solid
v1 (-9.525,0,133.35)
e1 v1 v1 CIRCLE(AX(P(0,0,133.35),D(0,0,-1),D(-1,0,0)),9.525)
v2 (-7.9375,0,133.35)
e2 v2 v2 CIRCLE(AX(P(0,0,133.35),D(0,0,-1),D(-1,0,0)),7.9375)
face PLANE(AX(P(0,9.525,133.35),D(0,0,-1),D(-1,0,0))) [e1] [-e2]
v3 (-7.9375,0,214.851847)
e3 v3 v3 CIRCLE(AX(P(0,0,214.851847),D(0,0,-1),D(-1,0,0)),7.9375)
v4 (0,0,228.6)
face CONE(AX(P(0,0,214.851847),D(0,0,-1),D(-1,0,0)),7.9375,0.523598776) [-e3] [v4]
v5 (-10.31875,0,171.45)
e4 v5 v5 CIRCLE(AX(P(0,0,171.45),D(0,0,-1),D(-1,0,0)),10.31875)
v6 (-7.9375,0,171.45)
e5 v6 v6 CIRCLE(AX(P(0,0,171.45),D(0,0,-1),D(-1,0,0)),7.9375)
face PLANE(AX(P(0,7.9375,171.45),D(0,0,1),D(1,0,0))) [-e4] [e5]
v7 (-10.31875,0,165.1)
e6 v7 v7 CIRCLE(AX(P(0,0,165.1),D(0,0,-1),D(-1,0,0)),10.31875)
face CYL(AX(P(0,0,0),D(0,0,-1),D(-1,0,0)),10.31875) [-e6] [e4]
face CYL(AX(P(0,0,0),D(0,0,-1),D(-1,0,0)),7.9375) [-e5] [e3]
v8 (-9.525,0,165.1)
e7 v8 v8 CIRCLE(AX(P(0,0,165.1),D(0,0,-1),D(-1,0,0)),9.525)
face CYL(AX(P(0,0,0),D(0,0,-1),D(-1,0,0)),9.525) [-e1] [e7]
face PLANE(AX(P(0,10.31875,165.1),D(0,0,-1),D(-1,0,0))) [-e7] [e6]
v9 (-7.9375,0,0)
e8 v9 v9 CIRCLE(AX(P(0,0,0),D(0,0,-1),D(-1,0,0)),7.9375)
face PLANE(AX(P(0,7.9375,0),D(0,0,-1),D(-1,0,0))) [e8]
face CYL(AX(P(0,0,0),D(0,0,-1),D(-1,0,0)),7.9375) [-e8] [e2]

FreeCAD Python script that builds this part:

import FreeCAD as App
import Part
import Sketcher
from FreeCAD import Vector
Q = App.Units.Quantity


def add_polygon(sketch, points):
    """Adds a closed chain of lines whose ends are joined by coincident constraints."""
    first, n = sketch.GeometryCount, len(points)
    for a, b in zip(points, points[1:] + points[:1]):
        sketch.addGeometry(Part.LineSegment(App.Vector(*a, 0), App.Vector(*b, 0)), False)
    for i in range(n):
        sketch.addConstraint(Sketcher.Constraint("Coincident", first + i, 2, first + (i + 1) % n, 1))

doc = App.newDocument("Part")
body = doc.addObject("PartDesign::Body", "Body")

# Sketch on YZ plane
sketch1 = doc.addObject("Sketcher::SketchObject", "Sketch")
body.addObject(sketch1)
sketch1.AttachmentSupport = (doc.YZ_Plane, [""])
sketch1.MapMode = "FlatFace"
add_polygon(sketch1, [(7.9, 214.9), (0, 228.6), (0, 0), (7.9, 0), (7.9, 133.3), (9.5, 133.3), (9.5, 165.1), (10.3, 165.1), (10.3, 171.4), (7.9, 171.4)])  # lines 0-9
sketch1.addConstraint(Sketcher.Constraint("Vertical", 1))
sketch1.addConstraint(Sketcher.Constraint("Horizontal", 2))
sketch1.addConstraint(Sketcher.Constraint("Vertical", 3))
sketch1.addConstraint(Sketcher.Constraint("Horizontal", 4))
sketch1.addConstraint(Sketcher.Constraint("Vertical", 5))
sketch1.addConstraint(Sketcher.Constraint("Horizontal", 6))
sketch1.addConstraint(Sketcher.Constraint("Vertical", 7))
sketch1.addConstraint(Sketcher.Constraint("Horizontal", 8))
sketch1.addConstraint(Sketcher.Constraint("Vertical", 9))
sketch1.addConstraint(Sketcher.Constraint("Coincident", 1, 2, -1, 1))
sketch1.addConstraint(Sketcher.Constraint("Vertical", 3, 2, 8, 2))
sketch1.addConstraint(Sketcher.Constraint("DistanceY", 1, 2, 1, 1, Q("9 in")))
sketch1.addConstraint(Sketcher.Constraint("Angle", 0, Q("120 deg")))
sketch1.addConstraint(Sketcher.Constraint("DistanceY", 3, 1, 3, 2, Q("5.25 in")))
sketch1.addConstraint(Sketcher.Constraint("DistanceY", 5, 1, 5, 2, Q("1.25 in")))
sketch1.addConstraint(Sketcher.Constraint("DistanceY", 7, 1, 7, 2, Q("0.25 in")))
sketch1.addConstraint(Sketcher.Constraint("DistanceX", 2, 1, 2, 2, Q("0.3125 in")))
sketch1.addConstraint(Sketcher.Constraint("DistanceX", 4, 1, 4, 2, Q("0.0625 in")))
sketch1.addConstraint(Sketcher.Constraint("DistanceX", 6, 1, 6, 2, Q("0.03125 in")))
revolution = doc.addObject("PartDesign::Revolution", "Revolution")
body.addObject(revolution)
revolution.Profile = sketch1
revolution.ReferenceAxis = (sketch1, ["V_Axis"])
revolution.Angle = 360

doc.recompute()
